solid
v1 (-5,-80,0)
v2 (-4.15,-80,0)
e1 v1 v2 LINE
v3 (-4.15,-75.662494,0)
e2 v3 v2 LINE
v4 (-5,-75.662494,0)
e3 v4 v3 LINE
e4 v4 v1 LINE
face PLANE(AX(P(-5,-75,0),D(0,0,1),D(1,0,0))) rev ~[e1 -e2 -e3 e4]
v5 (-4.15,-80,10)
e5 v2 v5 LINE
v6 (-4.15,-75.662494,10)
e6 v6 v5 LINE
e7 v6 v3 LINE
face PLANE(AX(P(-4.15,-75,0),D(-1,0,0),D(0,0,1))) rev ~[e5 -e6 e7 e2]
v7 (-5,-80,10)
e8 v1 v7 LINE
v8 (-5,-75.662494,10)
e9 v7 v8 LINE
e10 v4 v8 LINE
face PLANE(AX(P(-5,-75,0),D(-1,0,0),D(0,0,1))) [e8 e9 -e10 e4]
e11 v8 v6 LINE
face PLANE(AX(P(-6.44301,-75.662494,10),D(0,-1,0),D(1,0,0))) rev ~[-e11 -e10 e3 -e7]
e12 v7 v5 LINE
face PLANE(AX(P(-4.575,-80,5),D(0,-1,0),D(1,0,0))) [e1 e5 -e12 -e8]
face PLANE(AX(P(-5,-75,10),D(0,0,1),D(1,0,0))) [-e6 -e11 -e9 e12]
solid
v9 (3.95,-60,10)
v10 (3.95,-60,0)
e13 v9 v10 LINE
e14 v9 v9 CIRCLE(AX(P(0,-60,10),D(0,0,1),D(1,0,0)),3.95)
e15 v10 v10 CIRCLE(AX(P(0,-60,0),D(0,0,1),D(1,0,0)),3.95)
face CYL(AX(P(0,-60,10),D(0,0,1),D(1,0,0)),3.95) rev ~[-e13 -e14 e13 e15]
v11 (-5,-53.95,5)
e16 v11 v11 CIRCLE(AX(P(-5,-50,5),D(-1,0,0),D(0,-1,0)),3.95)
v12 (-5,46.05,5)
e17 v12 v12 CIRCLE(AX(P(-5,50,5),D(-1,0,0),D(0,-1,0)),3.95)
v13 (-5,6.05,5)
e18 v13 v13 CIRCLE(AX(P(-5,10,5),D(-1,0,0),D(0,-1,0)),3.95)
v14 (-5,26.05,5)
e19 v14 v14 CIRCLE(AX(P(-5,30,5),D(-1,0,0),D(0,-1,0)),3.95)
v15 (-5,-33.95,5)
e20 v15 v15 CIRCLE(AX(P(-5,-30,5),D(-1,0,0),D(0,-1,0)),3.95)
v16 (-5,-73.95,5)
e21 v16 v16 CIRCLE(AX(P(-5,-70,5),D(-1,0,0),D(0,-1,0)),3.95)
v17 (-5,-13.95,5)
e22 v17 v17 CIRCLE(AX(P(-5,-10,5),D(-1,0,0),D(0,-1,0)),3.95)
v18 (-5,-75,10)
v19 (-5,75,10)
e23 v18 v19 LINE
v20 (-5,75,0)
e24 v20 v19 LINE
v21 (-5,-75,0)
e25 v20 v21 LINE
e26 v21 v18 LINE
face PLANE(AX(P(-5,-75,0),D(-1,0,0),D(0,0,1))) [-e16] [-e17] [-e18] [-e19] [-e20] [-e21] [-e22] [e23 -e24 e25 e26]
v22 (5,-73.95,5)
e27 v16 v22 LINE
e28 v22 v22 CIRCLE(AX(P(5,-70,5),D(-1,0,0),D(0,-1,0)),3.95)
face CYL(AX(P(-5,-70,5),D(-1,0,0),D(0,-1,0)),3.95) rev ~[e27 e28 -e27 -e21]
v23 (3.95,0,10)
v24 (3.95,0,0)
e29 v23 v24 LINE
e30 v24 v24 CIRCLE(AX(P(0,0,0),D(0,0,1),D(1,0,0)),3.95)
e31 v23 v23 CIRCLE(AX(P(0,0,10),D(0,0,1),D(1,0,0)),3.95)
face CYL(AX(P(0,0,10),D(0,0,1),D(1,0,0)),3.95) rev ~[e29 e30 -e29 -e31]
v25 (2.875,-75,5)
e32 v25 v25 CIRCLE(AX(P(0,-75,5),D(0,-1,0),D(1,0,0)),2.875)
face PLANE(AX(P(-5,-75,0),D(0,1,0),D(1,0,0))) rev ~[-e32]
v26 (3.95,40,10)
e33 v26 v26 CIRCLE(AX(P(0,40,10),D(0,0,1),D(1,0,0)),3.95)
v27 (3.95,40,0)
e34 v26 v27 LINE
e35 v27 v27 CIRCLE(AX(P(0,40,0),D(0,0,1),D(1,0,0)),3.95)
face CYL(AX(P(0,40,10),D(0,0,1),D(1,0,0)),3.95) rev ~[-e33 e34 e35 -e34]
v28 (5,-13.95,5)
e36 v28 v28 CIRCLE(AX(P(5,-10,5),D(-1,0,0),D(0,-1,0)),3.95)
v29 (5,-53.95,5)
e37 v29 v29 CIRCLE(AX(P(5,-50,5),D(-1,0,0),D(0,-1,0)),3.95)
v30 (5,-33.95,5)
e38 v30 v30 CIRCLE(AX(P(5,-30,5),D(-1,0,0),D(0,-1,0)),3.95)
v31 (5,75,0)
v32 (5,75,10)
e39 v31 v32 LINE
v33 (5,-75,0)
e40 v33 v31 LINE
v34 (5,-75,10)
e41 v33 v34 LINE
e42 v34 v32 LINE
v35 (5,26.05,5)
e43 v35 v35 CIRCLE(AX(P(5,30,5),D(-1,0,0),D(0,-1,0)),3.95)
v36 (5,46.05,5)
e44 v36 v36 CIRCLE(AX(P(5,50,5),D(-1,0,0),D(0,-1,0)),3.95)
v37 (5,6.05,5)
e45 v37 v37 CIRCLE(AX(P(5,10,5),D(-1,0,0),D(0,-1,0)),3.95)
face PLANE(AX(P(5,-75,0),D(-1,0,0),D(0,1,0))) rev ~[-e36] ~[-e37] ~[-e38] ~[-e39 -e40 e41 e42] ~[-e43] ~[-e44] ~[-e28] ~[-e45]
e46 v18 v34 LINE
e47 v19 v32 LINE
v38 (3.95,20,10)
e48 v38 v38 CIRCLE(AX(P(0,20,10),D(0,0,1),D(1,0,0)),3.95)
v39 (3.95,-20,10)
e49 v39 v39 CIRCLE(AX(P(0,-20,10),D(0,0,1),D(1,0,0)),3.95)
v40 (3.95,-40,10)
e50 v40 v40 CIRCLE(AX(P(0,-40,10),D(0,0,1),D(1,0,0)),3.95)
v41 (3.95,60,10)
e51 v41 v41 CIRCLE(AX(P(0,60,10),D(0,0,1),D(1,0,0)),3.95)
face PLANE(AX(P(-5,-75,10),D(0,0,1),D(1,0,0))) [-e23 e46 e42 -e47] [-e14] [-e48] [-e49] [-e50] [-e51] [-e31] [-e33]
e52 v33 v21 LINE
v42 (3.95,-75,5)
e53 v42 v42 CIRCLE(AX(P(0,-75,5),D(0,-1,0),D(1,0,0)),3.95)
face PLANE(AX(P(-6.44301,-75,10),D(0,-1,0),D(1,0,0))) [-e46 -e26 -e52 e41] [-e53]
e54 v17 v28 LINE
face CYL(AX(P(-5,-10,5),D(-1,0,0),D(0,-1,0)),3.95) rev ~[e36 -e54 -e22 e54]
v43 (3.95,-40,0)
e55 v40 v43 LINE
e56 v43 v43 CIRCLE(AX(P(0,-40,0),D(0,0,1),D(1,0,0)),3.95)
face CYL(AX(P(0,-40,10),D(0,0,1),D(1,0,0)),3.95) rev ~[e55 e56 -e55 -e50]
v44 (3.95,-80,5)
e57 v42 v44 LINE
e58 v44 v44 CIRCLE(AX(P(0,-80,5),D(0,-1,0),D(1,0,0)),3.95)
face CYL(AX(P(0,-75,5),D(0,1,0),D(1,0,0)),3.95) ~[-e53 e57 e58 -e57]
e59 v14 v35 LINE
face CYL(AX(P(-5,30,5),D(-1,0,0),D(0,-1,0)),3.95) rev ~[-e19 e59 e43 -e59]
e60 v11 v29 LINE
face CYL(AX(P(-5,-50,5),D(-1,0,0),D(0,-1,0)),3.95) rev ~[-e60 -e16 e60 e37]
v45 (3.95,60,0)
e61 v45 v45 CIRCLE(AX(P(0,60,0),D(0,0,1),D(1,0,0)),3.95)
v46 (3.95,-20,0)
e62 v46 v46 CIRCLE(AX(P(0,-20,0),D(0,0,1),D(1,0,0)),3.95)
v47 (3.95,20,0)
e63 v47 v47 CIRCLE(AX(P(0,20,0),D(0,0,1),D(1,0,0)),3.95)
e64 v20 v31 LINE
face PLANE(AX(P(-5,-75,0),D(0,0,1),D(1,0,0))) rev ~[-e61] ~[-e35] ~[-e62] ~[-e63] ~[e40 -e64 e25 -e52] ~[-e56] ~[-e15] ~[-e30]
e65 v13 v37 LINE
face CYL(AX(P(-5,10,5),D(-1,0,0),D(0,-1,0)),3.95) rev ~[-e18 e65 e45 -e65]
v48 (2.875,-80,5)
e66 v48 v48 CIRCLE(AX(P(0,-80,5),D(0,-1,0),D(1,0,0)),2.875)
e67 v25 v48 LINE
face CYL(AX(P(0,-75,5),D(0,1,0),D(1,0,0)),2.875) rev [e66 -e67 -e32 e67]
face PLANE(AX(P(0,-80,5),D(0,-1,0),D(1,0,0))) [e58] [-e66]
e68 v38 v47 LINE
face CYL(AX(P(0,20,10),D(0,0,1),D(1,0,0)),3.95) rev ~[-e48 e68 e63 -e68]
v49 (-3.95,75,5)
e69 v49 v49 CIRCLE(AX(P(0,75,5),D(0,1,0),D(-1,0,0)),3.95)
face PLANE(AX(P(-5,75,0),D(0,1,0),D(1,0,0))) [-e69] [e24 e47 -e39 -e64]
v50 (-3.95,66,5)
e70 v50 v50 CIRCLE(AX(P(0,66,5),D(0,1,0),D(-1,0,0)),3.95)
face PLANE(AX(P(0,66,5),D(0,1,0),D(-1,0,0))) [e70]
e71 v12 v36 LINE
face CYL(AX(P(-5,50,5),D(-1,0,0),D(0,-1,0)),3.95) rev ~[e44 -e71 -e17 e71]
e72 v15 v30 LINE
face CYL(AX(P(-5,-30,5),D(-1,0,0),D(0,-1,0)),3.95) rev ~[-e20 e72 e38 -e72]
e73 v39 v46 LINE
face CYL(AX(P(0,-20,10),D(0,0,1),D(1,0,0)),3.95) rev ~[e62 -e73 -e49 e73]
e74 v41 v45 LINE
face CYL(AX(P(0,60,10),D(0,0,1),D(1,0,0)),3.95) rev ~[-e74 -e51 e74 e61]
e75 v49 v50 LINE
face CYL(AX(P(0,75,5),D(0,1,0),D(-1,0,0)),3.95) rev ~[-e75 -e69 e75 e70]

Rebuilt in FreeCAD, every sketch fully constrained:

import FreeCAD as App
import Part
import Sketcher

doc = App.newDocument("Part")
body = doc.addObject("PartDesign::Body", "Body")
body.AllowCompound = True

# Sketch on XY plane
sketch1 = body.newObject("Sketcher::SketchObject", "Sketch")
sketch1.AttachmentSupport = (doc.getObject("XY_Plane"), [""])
sketch1.MapMode = "FlatFace"
sketch1.addGeometry([
    Part.LineSegment(App.Vector(-5, 75, 0), App.Vector(-5, -75, 0)),
    Part.LineSegment(App.Vector(-5, -75, 0), App.Vector(5, -75, 0)),
    Part.LineSegment(App.Vector(5, -75, 0), App.Vector(5, 75, 0)),
    Part.LineSegment(App.Vector(5, 75, 0), App.Vector(-5, 75, 0)),
], False)
sketch1.addConstraint([
    Sketcher.Constraint("Coincident", 0, 2, 1, 1),
    Sketcher.Constraint("Coincident", 1, 2, 2, 1),
    Sketcher.Constraint("Coincident", 2, 2, 3, 1),
    Sketcher.Constraint("Coincident", 3, 2, 0, 1),
    Sketcher.Constraint("Vertical", 0),
    Sketcher.Constraint("Horizontal", 1),
    Sketcher.Constraint("Vertical", 2),
    Sketcher.Constraint("Horizontal", 3),
    Sketcher.Constraint("Symmetric", 0, 2, 2, 2, -1, 1),
    Sketcher.Constraint("DistanceX", 1, 1, 1, 2, 10.0),
    Sketcher.Constraint("DistanceY", 0, 2, 0, 1, 150.0),
])
pad1 = body.newObject("PartDesign::Pad", "Pad")
pad1.Profile = sketch1
pad1.Length = 10

# Sketch on XY plane
sketch2 = body.newObject("Sketcher::SketchObject", "Sketch001")
sketch2.AttachmentSupport = (doc.getObject("XY_Plane"), [""])
sketch2.MapMode = "FlatFace"
sketch2.AttachmentOffset = App.Placement(App.Vector(0, 0, 10), App.Rotation())
sketch2.addGeometry([
    Part.Circle(App.Vector(0, 0, 0), App.Vector(0, 0, 1), 3.95),  # 0
    Part.Circle(App.Vector(0, 20, 0), App.Vector(0, 0, 1), 3.95),  # 1
    Part.Circle(App.Vector(0, 40, 0), App.Vector(0, 0, 1), 3.95),  # 2
    Part.Circle(App.Vector(0, 60, 0), App.Vector(0, 0, 1), 3.95),  # 3
    Part.Circle(App.Vector(0, -20, 0), App.Vector(0, 0, 1), 3.95),  # 4
    Part.Circle(App.Vector(0, -40, 0), App.Vector(0, 0, 1), 3.95),  # 5
    Part.Circle(App.Vector(0, -60, 0), App.Vector(0, 0, 1), 3.95),  # 6
], False)
sketch2.addConstraint([
    Sketcher.Constraint("Coincident", 0, 3, -1, 1),
    Sketcher.Constraint("Equal", 0, 1),
    Sketcher.Constraint("Equal", 1, 2),
    Sketcher.Constraint("Equal", 2, 3),
    Sketcher.Constraint("Equal", 3, 4),
    Sketcher.Constraint("Equal", 4, 5),
    Sketcher.Constraint("Equal", 5, 6),
    Sketcher.Constraint("Symmetric", 1, 3, 4, 3, -1, 1),
    Sketcher.Constraint("Symmetric", 2, 3, 5, 3, -1, 1),
    Sketcher.Constraint("Symmetric", 3, 3, 6, 3, -1, 1),
    Sketcher.Constraint("PointOnObject", 1, 3, -2),
    Sketcher.Constraint("PointOnObject", 2, 3, -2),
    Sketcher.Constraint("PointOnObject", 3, 3, -2),
    Sketcher.Constraint("Diameter", 0, 7.9),
    Sketcher.Constraint("DistanceY", -1, 1, 1, 3, 20.0),
    Sketcher.Constraint("DistanceY", -1, 1, 2, 3, 40.0),
    Sketcher.Constraint("DistanceY", -1, 1, 3, 3, 60.0),
])
pocket1 = body.newObject("PartDesign::Pocket", "Pocket")
pocket1.Profile = sketch2
pocket1.Length = 25

# Sketch on YZ plane
sketch3 = body.newObject("Sketcher::SketchObject", "Sketch002")
sketch3.AttachmentSupport = (doc.getObject("YZ_Plane"), [""])
sketch3.MapMode = "FlatFace"
sketch3.AttachmentOffset = App.Placement(App.Vector(0, 0, -5), App.Rotation())
sketch3.addGeometry([
    Part.Circle(App.Vector(10, 5, 0), App.Vector(0, 0, 1), 3.95),  # 0
    Part.Circle(App.Vector(30, 5, 0), App.Vector(0, 0, 1), 3.95),  # 1
    Part.Circle(App.Vector(50, 5, 0), App.Vector(0, 0, 1), 3.95),  # 2
    Part.Circle(App.Vector(-10, 5, 0), App.Vector(0, 0, 1), 3.95),  # 3
    Part.Circle(App.Vector(-30, 5, 0), App.Vector(0, 0, 1), 3.95),  # 4
    Part.Circle(App.Vector(-50, 5, 0), App.Vector(0, 0, 1), 3.95),  # 5
    Part.Circle(App.Vector(-70, 5, 0), App.Vector(0, 0, 1), 3.95),  # 6
], False)
sketch3.addConstraint([
    Sketcher.Constraint("Equal", 0, 1),
    Sketcher.Constraint("Equal", 1, 2),
    Sketcher.Constraint("Equal", 2, 3),
    Sketcher.Constraint("Equal", 3, 4),
    Sketcher.Constraint("Equal", 4, 5),
    Sketcher.Constraint("Equal", 5, 6),
    Sketcher.Constraint("Symmetric", 0, 3, 3, 3, -2),
    Sketcher.Constraint("Symmetric", 1, 3, 4, 3, -2),
    Sketcher.Constraint("Symmetric", 2, 3, 5, 3, -2),
    Sketcher.Constraint("Horizontal", 0, 3, 1, 3),
    Sketcher.Constraint("Horizontal", 1, 3, 2, 3),
    Sketcher.Constraint("Horizontal", 5, 3, 6, 3),
    Sketcher.Constraint("Diameter", 0, 7.9),
    Sketcher.Constraint("DistanceX", -1, 1, 0, 3, 10.0),
    Sketcher.Constraint("DistanceY", -1, 1, 0, 3, 5.0),
    Sketcher.Constraint("DistanceX", -1, 1, 1, 3, 30.0),
    Sketcher.Constraint("DistanceX", -1, 1, 2, 3, 50.0),
    Sketcher.Constraint("DistanceX", 6, 3, -1, 1, 70.0),
])
pocket2 = body.newObject("PartDesign::Pocket", "Pocket001")
pocket2.Profile = sketch3
pocket2.Length = 25
pocket2.Reversed = True

# Sketch on XZ plane
sketch4 = body.newObject("Sketcher::SketchObject", "Sketch003")
sketch4.AttachmentSupport = (doc.getObject("XZ_Plane"), [""])
sketch4.MapMode = "FlatFace"
sketch4.AttachmentOffset = App.Placement(App.Vector(0, 0, -75), App.Rotation())
sketch4.addGeometry(Part.Circle(App.Vector(0, 5, 0), App.Vector(0, 0, 1), 3.95), False)
sketch4.addConstraint([
    Sketcher.Constraint("PointOnObject", 0, 3, -2),
    Sketcher.Constraint("Diameter", 0, 7.9),
    Sketcher.Constraint("DistanceY", -1, 1, 0, 3, 5.0),
])
pocket3 = body.newObject("PartDesign::Pocket", "Pocket002")
pocket3.Profile = sketch4
pocket3.Length = 9
pocket3.Reversed = True

# Sketch on XZ plane
sketch5 = body.newObject("Sketcher::SketchObject", "Sketch004")
sketch5.AttachmentSupport = (doc.getObject("XZ_Plane"), [""])
sketch5.MapMode = "FlatFace"
sketch5.AttachmentOffset = App.Placement(App.Vector(0, 0, 75), App.Rotation())
sketch5.addGeometry([
    Part.Circle(App.Vector(0, 5, 0), App.Vector(0, 0, 1), 3.95),
    Part.Circle(App.Vector(0, 5, 0), App.Vector(0, 0, 1), 2.875),
], False)
sketch5.addConstraint([
    Sketcher.Constraint("Coincident", 1, 3, 0, 3),
    Sketcher.Constraint("PointOnObject", 0, 3, -2),
    Sketcher.Constraint("Diameter", 0, 7.9),
    Sketcher.Constraint("Diameter", 1, 5.75),
    Sketcher.Constraint("DistanceY", -1, 1, 0, 3, 5.0),
])
pad2 = body.newObject("PartDesign::Pad", "Pad001")
pad2.Profile = sketch5
pad2.Length = 5

# Sketch on XZ plane
sketch6 = body.newObject("Sketcher::SketchObject", "Sketch005")
sketch6.AttachmentSupport = (doc.getObject("XZ_Plane"), [""])
sketch6.MapMode = "FlatFace"
sketch6.AttachmentOffset = App.Placement(App.Vector(0, 0, 75), App.Rotation())
sketch6.addGeometry([
    Part.LineSegment(App.Vector(-5, 10, 0), App.Vector(-5, 0, 0)),
    Part.LineSegment(App.Vector(-5, 0, 0), App.Vector(-4.15, 0, 0)),
    Part.LineSegment(App.Vector(-4.15, 0, 0), App.Vector(-4.15, 10, 0)),
    Part.LineSegment(App.Vector(-4.15, 10, 0), App.Vector(-5, 10, 0)),
], False)
sketch6.addConstraint([
    Sketcher.Constraint("Coincident", 0, 2, 1, 1),
    Sketcher.Constraint("Coincident", 1, 2, 2, 1),
    Sketcher.Constraint("Coincident", 2, 2, 3, 1),
    Sketcher.Constraint("Coincident", 3, 2, 0, 1),
    Sketcher.Constraint("Vertical", 0),
    Sketcher.Constraint("Horizontal", 1),
    Sketcher.Constraint("Vertical", 2),
    Sketcher.Constraint("Horizontal", 3),
    Sketcher.Constraint("PointOnObject", 0, 2, -1),
    Sketcher.Constraint("DistanceY", 0, 2, 0, 1, 10.0),
    Sketcher.Constraint("DistanceX", 0, 2, -1, 1, 5.0),
    Sketcher.Constraint("DistanceX", 1, 1, 1, 2, 0.85),
])
pad3 = body.newObject("PartDesign::Pad", "Pad002")
pad3.Profile = sketch6
pad3.Length = 5

# Sketch on XY plane
sketch7 = body.newObject("Sketcher::SketchObject", "Sketch006")
sketch7.AttachmentSupport = (doc.getObject("XY_Plane"), [""])
sketch7.MapMode = "FlatFace"
sketch7.AttachmentOffset = App.Placement(App.Vector(0, 0, 10), App.Rotation())
sketch7.addGeometry([
    Part.LineSegment(App.Vector(-6.44301, -75, 0), App.Vector(-6.44301, -75.662494, 0)),
    Part.LineSegment(App.Vector(-6.44301, -75.662494, 0), App.Vector(-4.15, -75.662494, 0)),
    Part.LineSegment(App.Vector(-4.15, -75.662494, 0), App.Vector(-4.15, -75, 0)),
    Part.LineSegment(App.Vector(-4.15, -75, 0), App.Vector(-6.44301, -75, 0)),
], False)
sketch7.addConstraint([
    Sketcher.Constraint("Coincident", 0, 2, 1, 1),
    Sketcher.Constraint("Coincident", 1, 2, 2, 1),
    Sketcher.Constraint("Coincident", 2, 2, 3, 1),
    Sketcher.Constraint("Coincident", 3, 2, 0, 1),
    Sketcher.Constraint("Vertical", 0),
    Sketcher.Constraint("Horizontal", 1),
    Sketcher.Constraint("Vertical", 2),
    Sketcher.Constraint("Horizontal", 3),
    Sketcher.Constraint("DistanceY", 2, 2, -1, 1, 75.0),
    Sketcher.Constraint("DistanceX", 1, 2, -1, 1, 4.15),
    Sketcher.Constraint("DistanceX", 1, 1, 1, 2, 2.29301),
    Sketcher.Constraint("DistanceY", 0, 2, 0, 1, 0.662494),
])
pocket4 = body.newObject("PartDesign::Pocket", "Pocket003")
pocket4.Profile = sketch7
pocket4.Length = 25

doc.recompute()
